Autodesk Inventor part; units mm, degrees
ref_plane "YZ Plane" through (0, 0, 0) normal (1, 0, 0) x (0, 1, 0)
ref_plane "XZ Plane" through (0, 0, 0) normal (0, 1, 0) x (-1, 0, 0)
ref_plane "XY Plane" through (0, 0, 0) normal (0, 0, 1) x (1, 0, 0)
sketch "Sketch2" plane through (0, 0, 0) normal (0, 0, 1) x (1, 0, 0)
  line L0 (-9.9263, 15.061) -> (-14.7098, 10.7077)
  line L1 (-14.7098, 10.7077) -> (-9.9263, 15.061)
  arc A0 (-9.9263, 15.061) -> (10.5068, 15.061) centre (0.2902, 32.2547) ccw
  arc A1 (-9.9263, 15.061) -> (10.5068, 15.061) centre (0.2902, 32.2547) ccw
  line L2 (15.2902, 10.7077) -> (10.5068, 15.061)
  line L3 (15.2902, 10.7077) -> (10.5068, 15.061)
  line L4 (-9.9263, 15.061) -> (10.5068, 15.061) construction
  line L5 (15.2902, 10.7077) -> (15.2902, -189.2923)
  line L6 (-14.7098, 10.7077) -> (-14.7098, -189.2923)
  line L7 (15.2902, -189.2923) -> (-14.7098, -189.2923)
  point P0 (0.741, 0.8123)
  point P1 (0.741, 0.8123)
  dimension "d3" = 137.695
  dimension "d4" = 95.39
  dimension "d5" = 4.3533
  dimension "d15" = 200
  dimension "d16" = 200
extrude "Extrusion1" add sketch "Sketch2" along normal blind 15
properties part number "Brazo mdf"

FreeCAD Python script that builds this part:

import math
import FreeCAD as App
import Part
import Sketcher

doc = App.newDocument("Part")
params = doc.addObject("Spreadsheet::Sheet", "Params")
for row, (alias, value) in enumerate([
    ("sketch1_height", "200 mm"),
    ("sketch1_radius", "20 mm"),
    ("sketch1_width", "30 mm"),
    ("pad1_length", "15 mm"),
], start=1):
    params.set(f"A{row}", alias)
    params.set(f"B{row}", "=" + value)
    params.setAlias(f"B{row}", alias)

body = doc.addObject("PartDesign::Body", "Body")

# Sketch on XY plane
sketch1 = body.newObject("Sketcher::SketchObject", "Sketch")
sketch1.AttachmentSupport = (doc.getObject("XY_Plane"), [""])
sketch1.MapMode = "FlatFace"
sketch1.addGeometry([
    Part.ArcOfCircle(Part.Circle(App.Vector(0.2902, 32.2547, 0), App.Vector(0, 0, 1), 20.000005), math.radians(-120.71879), math.radians(-59.280964)),  # 0
    Part.LineSegment(App.Vector(-9.9263, 15.061, 0), App.Vector(-14.7098, 10.7077, 0)),  # 1
    Part.LineSegment(App.Vector(-14.7098, 10.7077, 0), App.Vector(-14.7098, -189.2923, 0)),  # 2
    Part.LineSegment(App.Vector(-14.7098, -189.2923, 0), App.Vector(15.2902, -189.2923, 0)),  # 3
    Part.LineSegment(App.Vector(15.2902, -189.2923, 0), App.Vector(15.2902, 10.7077, 0)),  # 4
    Part.LineSegment(App.Vector(15.2902, 10.7077, 0), App.Vector(10.5068, 15.061, 0)),  # 5
], False)
sketch1.addConstraint([
    Sketcher.Constraint("Coincident", 0, 1, 1, 1),
    Sketcher.Constraint("Coincident", 1, 2, 2, 1),
    Sketcher.Constraint("Coincident", 2, 2, 3, 1),
    Sketcher.Constraint("Coincident", 3, 2, 4, 1),
    Sketcher.Constraint("Coincident", 4, 2, 5, 1),
    Sketcher.Constraint("Coincident", 5, 2, 0, 2),
    Sketcher.Constraint("Vertical", 2),
    Sketcher.Constraint("Horizontal", 3),
    Sketcher.Constraint("Vertical", 4),
    Sketcher.Constraint("Horizontal", 1, 2, 4, 2),
    Sketcher.Constraint("Horizontal", 0, 1, 5, 2),
    Sketcher.Constraint("Equal", 1, 5),
    Sketcher.Constraint("DistanceY", 2, 2, 2, 1, 200.0),
    Sketcher.Constraint("Radius", 0, 20.0),
    Sketcher.Constraint("DistanceX", 3, 1, 3, 2, 30.0),
    Sketcher.Constraint("DistanceY", 1, 2, 0, 1, 4.3533),
    Sketcher.Constraint("DistanceY", -1, 1, 0, 1, 15.061),
    Sketcher.Constraint("DistanceY", 1, 2, 0, 3, 21.547),
    Sketcher.Constraint("DistanceX", -1, 1, 0, 3, 0.2902),
])
sketch1.setExpression("Constraints[12]", "Params.sketch1_height")
sketch1.setExpression("Constraints[13]", "Params.sketch1_radius")
sketch1.setExpression("Constraints[14]", "Params.sketch1_width")
pad1 = body.newObject("PartDesign::Pad", "Pad")
pad1.Profile = sketch1
pad1.setExpression("Length", "Params.pad1_length")

doc.recompute()
